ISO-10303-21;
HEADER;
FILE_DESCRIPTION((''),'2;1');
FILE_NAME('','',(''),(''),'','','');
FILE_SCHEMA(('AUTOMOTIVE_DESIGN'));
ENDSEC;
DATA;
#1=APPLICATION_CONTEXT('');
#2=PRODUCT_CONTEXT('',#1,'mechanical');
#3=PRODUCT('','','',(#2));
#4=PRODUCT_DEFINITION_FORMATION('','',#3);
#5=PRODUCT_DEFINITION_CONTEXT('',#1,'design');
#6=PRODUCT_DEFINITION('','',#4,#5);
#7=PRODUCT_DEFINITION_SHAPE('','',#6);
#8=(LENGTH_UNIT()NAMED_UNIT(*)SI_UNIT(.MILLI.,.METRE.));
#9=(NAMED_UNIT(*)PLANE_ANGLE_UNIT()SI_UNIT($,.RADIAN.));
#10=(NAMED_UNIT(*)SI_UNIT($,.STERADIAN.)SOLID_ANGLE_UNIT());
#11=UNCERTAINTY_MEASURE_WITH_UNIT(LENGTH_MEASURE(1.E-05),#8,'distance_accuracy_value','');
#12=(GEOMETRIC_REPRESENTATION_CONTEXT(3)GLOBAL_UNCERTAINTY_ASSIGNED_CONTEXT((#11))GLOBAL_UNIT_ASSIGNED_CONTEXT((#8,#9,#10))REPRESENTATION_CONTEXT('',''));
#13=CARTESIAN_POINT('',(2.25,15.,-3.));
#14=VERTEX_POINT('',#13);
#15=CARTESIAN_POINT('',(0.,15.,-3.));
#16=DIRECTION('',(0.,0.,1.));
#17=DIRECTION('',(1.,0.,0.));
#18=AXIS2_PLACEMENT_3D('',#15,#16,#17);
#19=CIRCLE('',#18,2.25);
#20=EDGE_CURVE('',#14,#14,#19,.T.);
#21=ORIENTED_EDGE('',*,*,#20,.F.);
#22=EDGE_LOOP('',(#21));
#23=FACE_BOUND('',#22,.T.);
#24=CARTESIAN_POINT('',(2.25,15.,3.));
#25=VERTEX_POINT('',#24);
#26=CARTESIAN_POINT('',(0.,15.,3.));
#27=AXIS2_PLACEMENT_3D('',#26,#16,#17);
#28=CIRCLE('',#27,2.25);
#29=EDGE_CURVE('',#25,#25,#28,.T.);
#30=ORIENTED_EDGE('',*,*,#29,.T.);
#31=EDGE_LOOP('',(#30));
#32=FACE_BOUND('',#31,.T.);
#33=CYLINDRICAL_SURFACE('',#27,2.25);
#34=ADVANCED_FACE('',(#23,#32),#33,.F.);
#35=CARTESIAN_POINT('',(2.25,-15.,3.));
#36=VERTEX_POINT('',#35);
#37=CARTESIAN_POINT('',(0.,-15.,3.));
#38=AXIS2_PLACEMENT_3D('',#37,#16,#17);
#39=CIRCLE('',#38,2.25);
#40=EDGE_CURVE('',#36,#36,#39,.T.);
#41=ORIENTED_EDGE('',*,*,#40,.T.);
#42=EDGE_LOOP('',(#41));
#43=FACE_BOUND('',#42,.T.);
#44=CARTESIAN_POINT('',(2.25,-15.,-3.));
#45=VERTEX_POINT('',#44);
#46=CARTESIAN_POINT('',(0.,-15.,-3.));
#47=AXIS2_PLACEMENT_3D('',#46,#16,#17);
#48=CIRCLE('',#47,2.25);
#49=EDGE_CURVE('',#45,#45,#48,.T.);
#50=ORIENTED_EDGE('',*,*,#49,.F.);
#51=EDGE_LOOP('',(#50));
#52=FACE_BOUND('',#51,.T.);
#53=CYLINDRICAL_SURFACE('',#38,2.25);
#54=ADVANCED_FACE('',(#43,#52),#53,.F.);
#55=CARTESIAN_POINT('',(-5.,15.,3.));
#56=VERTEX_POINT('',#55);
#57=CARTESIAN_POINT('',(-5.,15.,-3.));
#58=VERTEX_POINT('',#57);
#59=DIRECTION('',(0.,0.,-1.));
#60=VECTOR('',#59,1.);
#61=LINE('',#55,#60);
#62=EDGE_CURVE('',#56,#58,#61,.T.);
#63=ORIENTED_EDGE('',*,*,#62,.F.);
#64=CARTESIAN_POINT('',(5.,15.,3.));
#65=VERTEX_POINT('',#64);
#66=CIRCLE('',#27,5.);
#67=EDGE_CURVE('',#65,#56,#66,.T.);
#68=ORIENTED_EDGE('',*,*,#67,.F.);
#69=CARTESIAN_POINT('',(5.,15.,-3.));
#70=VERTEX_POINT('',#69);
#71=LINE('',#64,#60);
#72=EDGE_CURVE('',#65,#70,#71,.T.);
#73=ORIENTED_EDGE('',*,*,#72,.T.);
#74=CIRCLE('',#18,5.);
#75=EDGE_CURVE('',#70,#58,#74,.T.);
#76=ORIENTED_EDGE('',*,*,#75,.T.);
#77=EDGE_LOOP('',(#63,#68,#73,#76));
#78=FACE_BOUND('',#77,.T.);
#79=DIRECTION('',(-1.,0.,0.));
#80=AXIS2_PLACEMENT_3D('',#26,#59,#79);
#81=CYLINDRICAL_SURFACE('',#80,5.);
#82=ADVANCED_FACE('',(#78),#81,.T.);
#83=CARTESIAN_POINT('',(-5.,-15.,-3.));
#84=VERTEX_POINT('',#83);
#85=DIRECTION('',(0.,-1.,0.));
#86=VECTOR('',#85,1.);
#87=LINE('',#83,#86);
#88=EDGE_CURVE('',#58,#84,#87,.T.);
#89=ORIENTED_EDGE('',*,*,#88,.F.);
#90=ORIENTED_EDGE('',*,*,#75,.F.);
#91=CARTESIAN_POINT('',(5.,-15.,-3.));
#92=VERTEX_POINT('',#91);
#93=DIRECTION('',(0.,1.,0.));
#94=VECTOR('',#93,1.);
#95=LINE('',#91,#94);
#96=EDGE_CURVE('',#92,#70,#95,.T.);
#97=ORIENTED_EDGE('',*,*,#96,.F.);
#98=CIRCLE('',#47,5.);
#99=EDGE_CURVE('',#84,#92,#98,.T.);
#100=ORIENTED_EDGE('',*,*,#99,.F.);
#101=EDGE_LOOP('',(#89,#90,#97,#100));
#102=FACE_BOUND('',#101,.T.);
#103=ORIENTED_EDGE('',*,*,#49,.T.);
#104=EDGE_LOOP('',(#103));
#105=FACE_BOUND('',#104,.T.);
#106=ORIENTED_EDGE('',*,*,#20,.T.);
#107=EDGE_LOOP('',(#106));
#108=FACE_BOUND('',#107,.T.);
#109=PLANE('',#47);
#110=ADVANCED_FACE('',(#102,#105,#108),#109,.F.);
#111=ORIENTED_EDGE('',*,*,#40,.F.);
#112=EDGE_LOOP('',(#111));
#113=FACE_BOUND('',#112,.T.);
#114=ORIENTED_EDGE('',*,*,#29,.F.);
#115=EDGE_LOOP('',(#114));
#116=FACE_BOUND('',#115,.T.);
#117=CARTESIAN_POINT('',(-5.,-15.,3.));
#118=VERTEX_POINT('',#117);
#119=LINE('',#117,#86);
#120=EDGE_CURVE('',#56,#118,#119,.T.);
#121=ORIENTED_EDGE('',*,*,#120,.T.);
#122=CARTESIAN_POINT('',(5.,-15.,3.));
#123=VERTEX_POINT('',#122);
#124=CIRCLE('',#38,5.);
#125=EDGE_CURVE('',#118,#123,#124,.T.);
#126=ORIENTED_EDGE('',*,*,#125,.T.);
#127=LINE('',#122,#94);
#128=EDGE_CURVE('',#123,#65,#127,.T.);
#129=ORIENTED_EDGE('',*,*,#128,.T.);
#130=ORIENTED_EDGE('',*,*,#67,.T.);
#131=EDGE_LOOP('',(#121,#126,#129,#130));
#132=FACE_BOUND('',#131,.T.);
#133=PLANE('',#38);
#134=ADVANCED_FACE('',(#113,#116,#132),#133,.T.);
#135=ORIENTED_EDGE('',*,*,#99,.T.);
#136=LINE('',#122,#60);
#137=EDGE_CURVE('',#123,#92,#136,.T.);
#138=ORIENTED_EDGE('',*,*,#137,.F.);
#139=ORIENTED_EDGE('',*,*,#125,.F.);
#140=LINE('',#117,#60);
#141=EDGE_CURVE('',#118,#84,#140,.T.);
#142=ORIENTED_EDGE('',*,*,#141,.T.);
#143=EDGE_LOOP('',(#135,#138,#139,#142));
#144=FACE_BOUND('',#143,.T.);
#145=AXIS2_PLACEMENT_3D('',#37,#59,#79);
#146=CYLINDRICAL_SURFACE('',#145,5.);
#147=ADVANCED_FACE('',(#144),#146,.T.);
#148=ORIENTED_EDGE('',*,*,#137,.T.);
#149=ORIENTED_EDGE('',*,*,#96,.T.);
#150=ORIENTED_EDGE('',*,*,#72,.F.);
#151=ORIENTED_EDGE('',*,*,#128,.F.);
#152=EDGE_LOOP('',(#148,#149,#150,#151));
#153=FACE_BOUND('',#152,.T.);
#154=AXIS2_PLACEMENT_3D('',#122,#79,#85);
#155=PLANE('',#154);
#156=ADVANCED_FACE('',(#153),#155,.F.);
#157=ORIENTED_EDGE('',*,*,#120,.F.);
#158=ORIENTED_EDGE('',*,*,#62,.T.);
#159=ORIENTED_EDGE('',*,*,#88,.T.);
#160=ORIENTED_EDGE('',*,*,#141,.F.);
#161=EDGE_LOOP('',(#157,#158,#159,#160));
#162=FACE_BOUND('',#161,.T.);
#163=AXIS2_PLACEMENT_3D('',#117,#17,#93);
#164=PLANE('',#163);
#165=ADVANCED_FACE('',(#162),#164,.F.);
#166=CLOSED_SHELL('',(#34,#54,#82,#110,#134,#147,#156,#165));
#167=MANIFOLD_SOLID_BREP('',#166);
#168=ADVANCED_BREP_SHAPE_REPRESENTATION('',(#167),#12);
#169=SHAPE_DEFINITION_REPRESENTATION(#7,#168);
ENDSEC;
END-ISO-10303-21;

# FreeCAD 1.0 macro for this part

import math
import FreeCAD as App
import Part
import Sketcher

doc = App.newDocument("Part")
body = doc.addObject("PartDesign::Body", "Body")

# Sketch on XY plane
sketch1 = doc.addObject("Sketcher::SketchObject", "Sketch")
body.addObject(sketch1)
sketch1.AttachmentSupport = (doc.XY_Plane, [""])
sketch1.MapMode = "FlatFace"
sketch1.addGeometry(Part.LineSegment(App.Vector(-5, 15, 0), App.Vector(-5, -15, 0)), False)
sketch1.addGeometry(Part.ArcOfCircle(Part.Circle(App.Vector(0, -15, 0), App.Vector(0, 0, 1), 5), math.radians(180), math.radians(360)), False)
sketch1.addGeometry(Part.LineSegment(App.Vector(5, -15, 0), App.Vector(5, 15, 0)), False)
sketch1.addGeometry(Part.ArcOfCircle(Part.Circle(App.Vector(0, 15, 0), App.Vector(0, 0, 1), 5), math.radians(0), math.radians(180)), False)
sketch1.addConstraint(Sketcher.Constraint("Tangent", 0, 2, 1, 1))
sketch1.addConstraint(Sketcher.Constraint("Tangent", 1, 2, 2, 1))
sketch1.addConstraint(Sketcher.Constraint("Tangent", 2, 2, 3, 1))
sketch1.addConstraint(Sketcher.Constraint("Tangent", 3, 2, 0, 1))
sketch1.addConstraint(Sketcher.Constraint("Vertical", 0))
sketch1.addConstraint(Sketcher.Constraint("Vertical", 2))
sketch1.addConstraint(Sketcher.Constraint("Symmetric", 1, 3, 3, 3, -1, 1))
sketch1.addConstraint(Sketcher.Constraint("Radius", 1, 5.0))
sketch1.addConstraint(Sketcher.Constraint("DistanceY", 0, 2, 0, 1, 30.0))
pad1 = doc.addObject("PartDesign::Pad", "Pad")
body.addObject(pad1)
pad1.Profile = sketch1
pad1.Length = 6
pad1.Midplane = True

# Sketch on XY plane
sketch2 = doc.addObject("Sketcher::SketchObject", "Sketch001")
body.addObject(sketch2)
sketch2.AttachmentSupport = (doc.XY_Plane, [""])
sketch2.MapMode = "FlatFace"
sketch2.AttachmentOffset = App.Placement(App.Vector(0, 0, 3), App.Rotation())
sketch2.addGeometry(Part.Circle(App.Vector(0, 15, 0), App.Vector(0, 0, 1), 2.2), False)
sketch2.addGeometry(Part.Circle(App.Vector(0, -15, 0), App.Vector(0, 0, 1), 2.2), False)
sketch2.addConstraint(Sketcher.Constraint("Equal", 0, 1))
sketch2.addConstraint(Sketcher.Constraint("Symmetric", 0, 3, 1, 3, -1, 1))
sketch2.addConstraint(Sketcher.Constraint("PointOnObject", 0, 3, -2))
sketch2.addConstraint(Sketcher.Constraint("Diameter", 0, 4.5))
sketch2.addConstraint(Sketcher.Constraint("DistanceY", -1, 1, 0, 3, 15.0))
doc.recompute()
hole = doc.addObject("PartDesign::Hole", "Hole")
body.addObject(hole)
hole.Profile = sketch2
hole.ThreadType = "None"
hole.Diameter = 4.5
hole.DepthType = "ThroughAll"

doc.recompute()
